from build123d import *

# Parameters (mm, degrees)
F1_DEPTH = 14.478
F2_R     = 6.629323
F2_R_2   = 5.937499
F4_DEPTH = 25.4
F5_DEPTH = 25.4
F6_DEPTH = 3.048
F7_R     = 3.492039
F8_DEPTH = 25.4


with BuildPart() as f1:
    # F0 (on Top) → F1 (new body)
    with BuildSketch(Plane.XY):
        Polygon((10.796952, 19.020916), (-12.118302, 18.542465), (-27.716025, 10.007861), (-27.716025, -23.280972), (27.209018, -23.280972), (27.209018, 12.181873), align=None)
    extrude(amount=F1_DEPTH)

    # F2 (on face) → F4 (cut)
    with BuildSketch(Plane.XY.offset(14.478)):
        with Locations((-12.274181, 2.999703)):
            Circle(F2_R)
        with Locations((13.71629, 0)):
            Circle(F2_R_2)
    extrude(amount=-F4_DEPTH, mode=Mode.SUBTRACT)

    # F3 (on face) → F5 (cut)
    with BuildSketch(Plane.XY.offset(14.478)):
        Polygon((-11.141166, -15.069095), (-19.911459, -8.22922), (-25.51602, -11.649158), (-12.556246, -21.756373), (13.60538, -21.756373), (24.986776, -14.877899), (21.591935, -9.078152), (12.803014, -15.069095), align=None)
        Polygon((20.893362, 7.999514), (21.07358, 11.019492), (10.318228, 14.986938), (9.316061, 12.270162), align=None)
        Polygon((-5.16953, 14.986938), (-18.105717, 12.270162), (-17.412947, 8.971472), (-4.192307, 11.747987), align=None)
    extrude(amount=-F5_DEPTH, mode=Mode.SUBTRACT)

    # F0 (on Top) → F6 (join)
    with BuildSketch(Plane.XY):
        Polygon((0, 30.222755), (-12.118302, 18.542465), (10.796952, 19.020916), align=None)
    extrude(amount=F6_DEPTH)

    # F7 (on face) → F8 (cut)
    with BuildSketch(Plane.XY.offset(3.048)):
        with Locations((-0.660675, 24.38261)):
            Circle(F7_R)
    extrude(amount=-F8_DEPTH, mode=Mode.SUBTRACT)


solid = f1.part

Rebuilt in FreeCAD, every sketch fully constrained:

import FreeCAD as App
import Part
import Sketcher
Q = App.Units.Quantity


def add_polygon(sketch, points):
    """Adds a closed chain of lines whose ends are joined by coincident constraints."""
    first, n = sketch.GeometryCount, len(points)
    for a, b in zip(points, points[1:] + points[:1]):
        sketch.addGeometry(Part.LineSegment(App.Vector(*a, 0), App.Vector(*b, 0)), False)
    for i in range(n):
        sketch.addConstraint(Sketcher.Constraint("Coincident", first + i, 2, first + (i + 1) % n, 1))

doc = App.newDocument("Part")
body = doc.addObject("PartDesign::Body", "Body")

sketch1 = body.newObject("Sketcher::SketchObject", "Sketch")
sketch1.AttachmentSupport = (doc.getObject("XY_Plane"), [""])
sketch1.MapMode = "FlatFace"
add_polygon(sketch1, [(10.796952, 19.020916), (-12.118302, 18.542465), (-27.716025, 10.007861), (-27.716025, -23.280972), (27.209018, -23.280972), (27.209018, 12.181873)])
sketch1.addConstraint([
    Sketcher.Constraint("Vertical", 2),
    Sketcher.Constraint("Horizontal", 3),
    Sketcher.Constraint("Vertical", 4),
    Sketcher.Constraint("Equal", 1, 5),
    Sketcher.Constraint("Distance", 1, Q("0.7 in")),
    Sketcher.Constraint("Distance", 0, 22.920248),
    Sketcher.Constraint("DistanceX", 3, 1, 3, 2, 54.925043),
    Sketcher.Constraint("DistanceY", 2, 2, 2, 1, 33.288833),
    Sketcher.Constraint("DistanceY", 4, 1, 4, 2, 35.462845),
    Sketcher.Constraint("DistanceY", -1, 1, 1, 2, 10.007861),
    Sketcher.Constraint("DistanceX", -1, 1, 3, 2, 27.209018),
    Sketcher.Constraint("DistanceX", -1, 1, 5, 2, 10.796952),
])
pad1 = body.newObject("PartDesign::Pad", "Pad")
pad1.Profile = sketch1
pad1.Length = Q("0.57 in")

sketch2 = body.newObject("Sketcher::SketchObject", "Sketch001")
sketch2.AttachmentSupport = (doc.getObject("XY_Plane"), [""])
sketch2.MapMode = "FlatFace"
sketch2.AttachmentOffset = App.Placement(App.Vector(0, 0, 0.57 * 25.4), App.Rotation())
sketch2.addGeometry([
    Part.Circle(App.Vector(-12.274181, 2.999703, 0), App.Vector(0, 0, 1), 6.629323),
    Part.Circle(App.Vector(13.71629, 0, 0), App.Vector(0, 0, 1), 5.937499),
], False)
sketch2.addConstraint([
    Sketcher.Constraint("PointOnObject", 1, 3, -1),
    Sketcher.Constraint("Diameter", 0, 13.258646),
    Sketcher.Constraint("Diameter", 1, 11.874998),
    Sketcher.Constraint("DistanceX", 0, 3, -1, 1, 12.274181),
    Sketcher.Constraint("DistanceX", -1, 1, 1, 3, 13.71629),
    Sketcher.Constraint("DistanceY", -1, 1, 0, 3, 2.999703),
])
pocket1 = body.newObject("PartDesign::Pocket", "Pocket")
pocket1.Profile = sketch2
pocket1.Length = Q("1 in")

sketch3 = body.newObject("Sketcher::SketchObject", "Sketch002")
sketch3.AttachmentSupport = (doc.getObject("XY_Plane"), [""])
sketch3.MapMode = "FlatFace"
sketch3.AttachmentOffset = App.Placement(App.Vector(0, 0, 0.57 * 25.4), App.Rotation())
add_polygon(sketch3, [(-11.141166, -15.069095), (-19.911459, -8.22922), (-25.51602, -11.649158), (-12.556246, -21.756373), (13.60538, -21.756373), (24.986776, -14.877899), (21.591935, -9.078152), (12.803014, -15.069095)])
add_polygon(sketch3, [(20.893362, 7.999514), (21.07358, 11.019492), (10.318228, 14.986938), (9.316061, 12.270162)])
add_polygon(sketch3, [(-5.16953, 14.986938), (-18.105717, 12.270162), (-17.412947, 8.971472), (-4.192307, 11.747987)])
sketch3.addConstraint([
    Sketcher.Constraint("Horizontal", 3),
    Sketcher.Constraint("Horizontal", 7),
    Sketcher.Constraint("Parallel", 0, 2),
    Sketcher.Constraint("Perpendicular", 9, 10),
    Sketcher.Constraint("Perpendicular", 10, 11),
    Sketcher.Constraint("Perpendicular", 12, 13),
    Sketcher.Constraint("Perpendicular", 13, 14),
    Sketcher.Constraint("Horizontal", 10, 2, 12, 2),
    Sketcher.Constraint("Horizontal", 9, 2, 15, 2),
    Sketcher.Constraint("Distance", 1, 6.565598),
    Sketcher.Constraint("DistanceX", 7, 2, 7, 1, 23.94418),
    Sketcher.Constraint("DistanceY", 4, 2, -1, 1, 14.877899),
    Sketcher.Constraint("DistanceX", 1, 2, 3, 2, 39.1214),
    Sketcher.Constraint("DistanceX", 3, 2, 8, 2, 7.4682),
    Sketcher.Constraint("DistanceX", 10, 2, 11, 2, 11.577301),
    Sketcher.Constraint("Distance", 2, 16.43507),
    Sketcher.Constraint("Distance", 4, 13.29848),
    Sketcher.Constraint("Distance", 5, 6.720269),
    Sketcher.Constraint("Distance", 8, 3.025351),
    Sketcher.Constraint("Distance", 9, 11.463779),
    Sketcher.Constraint("Distance", 12, 13.218389),
    Sketcher.Constraint("Distance", 13, 3.370651),
    Sketcher.Constraint("Distance", 15, 3.38316),
    Sketcher.Constraint("DistanceX", 3, 1, 3, 2, 26.161626),
    Sketcher.Constraint("DistanceX", 0, 2, -1, 1, 19.911459),
    Sketcher.Constraint("DistanceY", 0, 2, -1, 1, 8.22922),
    Sketcher.Constraint("DistanceX", 1, 2, -1, 1, 25.51602),
    Sketcher.Constraint("DistanceY", 5, 2, -1, 1, 9.078152),
    Sketcher.Constraint("DistanceX", -1, 1, 10, 2, 9.316061),
    Sketcher.Constraint("DistanceY", -1, 1, 10, 2, 12.270162),
    Sketcher.Constraint("DistanceX", 15, 2, -1, 1, 5.16953),
    Sketcher.Constraint("DistanceX", 6, 2, 5, 2, 8.788921),
])
pocket2 = body.newObject("PartDesign::Pocket", "Pocket001")
pocket2.Profile = sketch3
pocket2.Length = Q("1 in")

sketch4 = body.newObject("Sketcher::SketchObject", "Sketch003")
sketch4.AttachmentSupport = (doc.getObject("XY_Plane"), [""])
sketch4.MapMode = "FlatFace"
add_polygon(sketch4, [(0, 30.222755), (-12.118302, 18.542465), (10.796952, 19.020916)])
sketch4.addConstraint([
    Sketcher.Constraint("PointOnObject", 2, 2, -2),
    Sketcher.Constraint("Perpendicular", 0, 2),
    Sketcher.Constraint("Distance", 1, 22.920248),
    Sketcher.Constraint("Distance", 2, 15.558129),
    Sketcher.Constraint("DistanceX", -1, 1, 1, 2, 10.796952),
    Sketcher.Constraint("DistanceY", -1, 1, 0, 2, 18.542465),
])
pad2 = body.newObject("PartDesign::Pad", "Pad001")
pad2.Profile = sketch4
pad2.Length = Q("0.12 in")

sketch5 = body.newObject("Sketcher::SketchObject", "Sketch004")
sketch5.AttachmentSupport = (doc.getObject("XY_Plane"), [""])
sketch5.MapMode = "FlatFace"
sketch5.AttachmentOffset = App.Placement(App.Vector(0, 0, 0.12 * 25.4), App.Rotation())
sketch5.addGeometry(Part.Circle(App.Vector(-0.660675, 24.38261, 0), App.Vector(0, 0, 1), 3.492039), False)
sketch5.addConstraint([
    Sketcher.Constraint("Diameter", 0, 6.984078),
    Sketcher.Constraint("DistanceY", -1, 1, 0, 3, 24.38261),
    Sketcher.Constraint("DistanceX", 0, 3, -1, 1, 0.660675),
])
pocket3 = body.newObject("PartDesign::Pocket", "Pocket002")
pocket3.Profile = sketch5
pocket3.Length = Q("1 in")

doc.recompute()
